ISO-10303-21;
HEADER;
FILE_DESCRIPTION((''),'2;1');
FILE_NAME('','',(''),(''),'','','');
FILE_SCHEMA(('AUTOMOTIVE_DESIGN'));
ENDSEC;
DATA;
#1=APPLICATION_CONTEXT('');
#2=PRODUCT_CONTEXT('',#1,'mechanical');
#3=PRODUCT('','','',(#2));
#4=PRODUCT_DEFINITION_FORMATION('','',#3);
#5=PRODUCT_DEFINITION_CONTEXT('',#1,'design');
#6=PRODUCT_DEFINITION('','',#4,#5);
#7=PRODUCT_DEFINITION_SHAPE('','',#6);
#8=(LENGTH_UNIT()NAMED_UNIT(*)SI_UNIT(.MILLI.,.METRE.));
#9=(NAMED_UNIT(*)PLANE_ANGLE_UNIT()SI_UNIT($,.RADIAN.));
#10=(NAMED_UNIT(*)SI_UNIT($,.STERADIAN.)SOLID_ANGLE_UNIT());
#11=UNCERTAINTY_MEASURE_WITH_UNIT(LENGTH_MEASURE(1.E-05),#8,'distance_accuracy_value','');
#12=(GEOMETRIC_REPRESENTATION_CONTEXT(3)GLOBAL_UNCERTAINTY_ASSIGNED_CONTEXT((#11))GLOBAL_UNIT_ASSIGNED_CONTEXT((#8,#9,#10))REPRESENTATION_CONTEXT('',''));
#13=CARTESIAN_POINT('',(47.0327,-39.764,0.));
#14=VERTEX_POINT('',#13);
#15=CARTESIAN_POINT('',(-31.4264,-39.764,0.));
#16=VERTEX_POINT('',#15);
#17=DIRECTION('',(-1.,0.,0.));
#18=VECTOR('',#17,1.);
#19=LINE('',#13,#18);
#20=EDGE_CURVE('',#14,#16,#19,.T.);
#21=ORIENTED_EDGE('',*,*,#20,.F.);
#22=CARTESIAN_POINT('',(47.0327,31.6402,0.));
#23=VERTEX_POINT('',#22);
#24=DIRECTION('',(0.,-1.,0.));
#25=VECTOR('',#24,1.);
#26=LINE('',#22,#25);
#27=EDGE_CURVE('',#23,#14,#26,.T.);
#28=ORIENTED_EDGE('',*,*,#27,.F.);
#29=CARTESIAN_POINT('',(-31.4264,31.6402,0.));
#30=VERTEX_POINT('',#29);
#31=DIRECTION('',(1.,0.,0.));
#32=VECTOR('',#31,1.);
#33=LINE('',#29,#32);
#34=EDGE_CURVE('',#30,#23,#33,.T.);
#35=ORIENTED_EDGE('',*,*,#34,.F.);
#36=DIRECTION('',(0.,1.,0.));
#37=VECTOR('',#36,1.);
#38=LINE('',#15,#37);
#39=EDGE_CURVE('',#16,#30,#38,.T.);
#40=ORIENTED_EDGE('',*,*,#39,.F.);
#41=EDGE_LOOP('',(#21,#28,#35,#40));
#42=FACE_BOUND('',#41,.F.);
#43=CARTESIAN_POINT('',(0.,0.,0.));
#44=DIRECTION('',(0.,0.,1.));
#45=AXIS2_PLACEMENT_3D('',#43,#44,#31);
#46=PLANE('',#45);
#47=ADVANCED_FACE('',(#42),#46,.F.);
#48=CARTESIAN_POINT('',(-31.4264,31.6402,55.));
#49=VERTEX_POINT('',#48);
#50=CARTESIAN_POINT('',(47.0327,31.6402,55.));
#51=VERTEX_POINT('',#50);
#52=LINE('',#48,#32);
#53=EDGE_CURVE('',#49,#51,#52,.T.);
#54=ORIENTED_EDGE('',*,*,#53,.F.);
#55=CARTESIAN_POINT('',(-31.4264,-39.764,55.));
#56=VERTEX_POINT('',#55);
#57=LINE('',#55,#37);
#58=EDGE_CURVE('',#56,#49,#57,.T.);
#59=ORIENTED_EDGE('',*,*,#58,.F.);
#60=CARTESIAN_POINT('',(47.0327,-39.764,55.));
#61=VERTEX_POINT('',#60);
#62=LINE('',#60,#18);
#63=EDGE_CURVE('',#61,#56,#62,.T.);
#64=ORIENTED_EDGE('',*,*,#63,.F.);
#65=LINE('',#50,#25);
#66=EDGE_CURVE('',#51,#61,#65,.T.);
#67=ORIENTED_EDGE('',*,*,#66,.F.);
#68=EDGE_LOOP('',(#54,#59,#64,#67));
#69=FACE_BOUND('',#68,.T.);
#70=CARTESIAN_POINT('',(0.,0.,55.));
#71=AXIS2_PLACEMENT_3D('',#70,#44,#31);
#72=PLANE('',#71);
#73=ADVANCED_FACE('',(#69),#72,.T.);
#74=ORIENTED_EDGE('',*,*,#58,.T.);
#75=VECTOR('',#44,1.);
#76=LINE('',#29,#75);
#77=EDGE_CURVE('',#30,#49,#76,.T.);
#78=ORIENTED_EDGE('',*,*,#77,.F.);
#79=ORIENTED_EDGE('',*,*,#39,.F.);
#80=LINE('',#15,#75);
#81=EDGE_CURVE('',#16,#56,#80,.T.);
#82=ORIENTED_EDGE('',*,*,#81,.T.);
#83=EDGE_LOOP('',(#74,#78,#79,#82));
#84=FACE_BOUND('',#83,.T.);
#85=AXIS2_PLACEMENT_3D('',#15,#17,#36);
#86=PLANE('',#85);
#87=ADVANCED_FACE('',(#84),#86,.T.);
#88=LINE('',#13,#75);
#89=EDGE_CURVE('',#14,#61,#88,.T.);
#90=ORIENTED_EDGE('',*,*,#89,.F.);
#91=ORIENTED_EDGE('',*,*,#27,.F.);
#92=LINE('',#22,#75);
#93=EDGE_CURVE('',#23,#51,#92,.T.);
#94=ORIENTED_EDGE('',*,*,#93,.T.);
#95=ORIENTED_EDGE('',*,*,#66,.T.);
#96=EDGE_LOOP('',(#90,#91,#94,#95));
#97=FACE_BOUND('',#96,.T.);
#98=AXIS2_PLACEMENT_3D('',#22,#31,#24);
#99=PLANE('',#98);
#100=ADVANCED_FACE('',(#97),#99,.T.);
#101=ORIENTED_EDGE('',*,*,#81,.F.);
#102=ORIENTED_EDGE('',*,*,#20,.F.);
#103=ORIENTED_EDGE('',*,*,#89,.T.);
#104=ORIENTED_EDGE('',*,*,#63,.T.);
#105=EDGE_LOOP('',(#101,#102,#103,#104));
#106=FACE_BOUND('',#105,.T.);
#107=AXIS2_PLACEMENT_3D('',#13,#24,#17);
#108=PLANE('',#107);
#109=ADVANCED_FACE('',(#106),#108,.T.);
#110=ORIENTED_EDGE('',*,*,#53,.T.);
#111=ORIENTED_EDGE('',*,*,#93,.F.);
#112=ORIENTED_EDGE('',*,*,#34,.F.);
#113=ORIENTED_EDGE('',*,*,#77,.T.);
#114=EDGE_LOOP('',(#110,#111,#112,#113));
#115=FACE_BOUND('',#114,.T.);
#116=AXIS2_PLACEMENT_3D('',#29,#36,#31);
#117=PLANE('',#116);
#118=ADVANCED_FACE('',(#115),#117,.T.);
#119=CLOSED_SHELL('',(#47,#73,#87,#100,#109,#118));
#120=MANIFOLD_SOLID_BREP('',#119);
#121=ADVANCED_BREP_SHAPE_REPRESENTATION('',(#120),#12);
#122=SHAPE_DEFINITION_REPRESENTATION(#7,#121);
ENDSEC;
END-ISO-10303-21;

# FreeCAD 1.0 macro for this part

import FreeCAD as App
import Part
import Sketcher

V = App.Vector

doc = App.newDocument("Part")
params = doc.addObject("Spreadsheet::Sheet", "Params")
for row, (alias, value) in enumerate([
    ("pad1_length", "55 mm"),
], start=1):
    params.set(f"A{row}", alias)
    params.set(f"B{row}", "=" + value)
    params.setAlias(f"B{row}", alias)

body = doc.addObject("PartDesign::Body", "Body")

# Sketch on XY plane
sketch1 = doc.addObject("Sketcher::SketchObject", "Sketch")
body.addObject(sketch1)
sketch1.AttachmentSupport = (doc.XY_Plane, [""])
sketch1.MapMode = "FlatFace"
sketch1.addGeometry([
    Part.LineSegment(V(47, 32, 0), V(-31, 32, 0)),
    Part.LineSegment(V(-31, 32, 0), V(-31, -40, 0)),
    Part.LineSegment(V(-31, -40, 0), V(47, -40, 0)),
    Part.LineSegment(V(47, -40, 0), V(47, 32, 0)),
], False)
sketch1.addConstraint([
    Sketcher.Constraint("Coincident", 0, 2, 1, 1),
    Sketcher.Constraint("Coincident", 1, 2, 2, 1),
    Sketcher.Constraint("Coincident", 2, 2, 3, 1),
    Sketcher.Constraint("Coincident", 3, 2, 0, 1),
    Sketcher.Constraint("Horizontal", 0),
    Sketcher.Constraint("Vertical", 1),
    Sketcher.Constraint("Horizontal", 2),
    Sketcher.Constraint("Vertical", 3),
    Sketcher.Constraint("DistanceX", 0, 2, 0, 1, 78.459),
    Sketcher.Constraint("DistanceY", 1, 2, 1, 1, 71.4042),
    Sketcher.Constraint("DistanceY", 1, 2, -1, 1, 39.764),
    Sketcher.Constraint("DistanceX", 0, 2, -1, 1, 31.4264),
])
pad1 = doc.addObject("PartDesign::Pad", "Pad")
body.addObject(pad1)
pad1.Profile = sketch1
pad1.setExpression("Length", "Params.pad1_length")

doc.recompute()
